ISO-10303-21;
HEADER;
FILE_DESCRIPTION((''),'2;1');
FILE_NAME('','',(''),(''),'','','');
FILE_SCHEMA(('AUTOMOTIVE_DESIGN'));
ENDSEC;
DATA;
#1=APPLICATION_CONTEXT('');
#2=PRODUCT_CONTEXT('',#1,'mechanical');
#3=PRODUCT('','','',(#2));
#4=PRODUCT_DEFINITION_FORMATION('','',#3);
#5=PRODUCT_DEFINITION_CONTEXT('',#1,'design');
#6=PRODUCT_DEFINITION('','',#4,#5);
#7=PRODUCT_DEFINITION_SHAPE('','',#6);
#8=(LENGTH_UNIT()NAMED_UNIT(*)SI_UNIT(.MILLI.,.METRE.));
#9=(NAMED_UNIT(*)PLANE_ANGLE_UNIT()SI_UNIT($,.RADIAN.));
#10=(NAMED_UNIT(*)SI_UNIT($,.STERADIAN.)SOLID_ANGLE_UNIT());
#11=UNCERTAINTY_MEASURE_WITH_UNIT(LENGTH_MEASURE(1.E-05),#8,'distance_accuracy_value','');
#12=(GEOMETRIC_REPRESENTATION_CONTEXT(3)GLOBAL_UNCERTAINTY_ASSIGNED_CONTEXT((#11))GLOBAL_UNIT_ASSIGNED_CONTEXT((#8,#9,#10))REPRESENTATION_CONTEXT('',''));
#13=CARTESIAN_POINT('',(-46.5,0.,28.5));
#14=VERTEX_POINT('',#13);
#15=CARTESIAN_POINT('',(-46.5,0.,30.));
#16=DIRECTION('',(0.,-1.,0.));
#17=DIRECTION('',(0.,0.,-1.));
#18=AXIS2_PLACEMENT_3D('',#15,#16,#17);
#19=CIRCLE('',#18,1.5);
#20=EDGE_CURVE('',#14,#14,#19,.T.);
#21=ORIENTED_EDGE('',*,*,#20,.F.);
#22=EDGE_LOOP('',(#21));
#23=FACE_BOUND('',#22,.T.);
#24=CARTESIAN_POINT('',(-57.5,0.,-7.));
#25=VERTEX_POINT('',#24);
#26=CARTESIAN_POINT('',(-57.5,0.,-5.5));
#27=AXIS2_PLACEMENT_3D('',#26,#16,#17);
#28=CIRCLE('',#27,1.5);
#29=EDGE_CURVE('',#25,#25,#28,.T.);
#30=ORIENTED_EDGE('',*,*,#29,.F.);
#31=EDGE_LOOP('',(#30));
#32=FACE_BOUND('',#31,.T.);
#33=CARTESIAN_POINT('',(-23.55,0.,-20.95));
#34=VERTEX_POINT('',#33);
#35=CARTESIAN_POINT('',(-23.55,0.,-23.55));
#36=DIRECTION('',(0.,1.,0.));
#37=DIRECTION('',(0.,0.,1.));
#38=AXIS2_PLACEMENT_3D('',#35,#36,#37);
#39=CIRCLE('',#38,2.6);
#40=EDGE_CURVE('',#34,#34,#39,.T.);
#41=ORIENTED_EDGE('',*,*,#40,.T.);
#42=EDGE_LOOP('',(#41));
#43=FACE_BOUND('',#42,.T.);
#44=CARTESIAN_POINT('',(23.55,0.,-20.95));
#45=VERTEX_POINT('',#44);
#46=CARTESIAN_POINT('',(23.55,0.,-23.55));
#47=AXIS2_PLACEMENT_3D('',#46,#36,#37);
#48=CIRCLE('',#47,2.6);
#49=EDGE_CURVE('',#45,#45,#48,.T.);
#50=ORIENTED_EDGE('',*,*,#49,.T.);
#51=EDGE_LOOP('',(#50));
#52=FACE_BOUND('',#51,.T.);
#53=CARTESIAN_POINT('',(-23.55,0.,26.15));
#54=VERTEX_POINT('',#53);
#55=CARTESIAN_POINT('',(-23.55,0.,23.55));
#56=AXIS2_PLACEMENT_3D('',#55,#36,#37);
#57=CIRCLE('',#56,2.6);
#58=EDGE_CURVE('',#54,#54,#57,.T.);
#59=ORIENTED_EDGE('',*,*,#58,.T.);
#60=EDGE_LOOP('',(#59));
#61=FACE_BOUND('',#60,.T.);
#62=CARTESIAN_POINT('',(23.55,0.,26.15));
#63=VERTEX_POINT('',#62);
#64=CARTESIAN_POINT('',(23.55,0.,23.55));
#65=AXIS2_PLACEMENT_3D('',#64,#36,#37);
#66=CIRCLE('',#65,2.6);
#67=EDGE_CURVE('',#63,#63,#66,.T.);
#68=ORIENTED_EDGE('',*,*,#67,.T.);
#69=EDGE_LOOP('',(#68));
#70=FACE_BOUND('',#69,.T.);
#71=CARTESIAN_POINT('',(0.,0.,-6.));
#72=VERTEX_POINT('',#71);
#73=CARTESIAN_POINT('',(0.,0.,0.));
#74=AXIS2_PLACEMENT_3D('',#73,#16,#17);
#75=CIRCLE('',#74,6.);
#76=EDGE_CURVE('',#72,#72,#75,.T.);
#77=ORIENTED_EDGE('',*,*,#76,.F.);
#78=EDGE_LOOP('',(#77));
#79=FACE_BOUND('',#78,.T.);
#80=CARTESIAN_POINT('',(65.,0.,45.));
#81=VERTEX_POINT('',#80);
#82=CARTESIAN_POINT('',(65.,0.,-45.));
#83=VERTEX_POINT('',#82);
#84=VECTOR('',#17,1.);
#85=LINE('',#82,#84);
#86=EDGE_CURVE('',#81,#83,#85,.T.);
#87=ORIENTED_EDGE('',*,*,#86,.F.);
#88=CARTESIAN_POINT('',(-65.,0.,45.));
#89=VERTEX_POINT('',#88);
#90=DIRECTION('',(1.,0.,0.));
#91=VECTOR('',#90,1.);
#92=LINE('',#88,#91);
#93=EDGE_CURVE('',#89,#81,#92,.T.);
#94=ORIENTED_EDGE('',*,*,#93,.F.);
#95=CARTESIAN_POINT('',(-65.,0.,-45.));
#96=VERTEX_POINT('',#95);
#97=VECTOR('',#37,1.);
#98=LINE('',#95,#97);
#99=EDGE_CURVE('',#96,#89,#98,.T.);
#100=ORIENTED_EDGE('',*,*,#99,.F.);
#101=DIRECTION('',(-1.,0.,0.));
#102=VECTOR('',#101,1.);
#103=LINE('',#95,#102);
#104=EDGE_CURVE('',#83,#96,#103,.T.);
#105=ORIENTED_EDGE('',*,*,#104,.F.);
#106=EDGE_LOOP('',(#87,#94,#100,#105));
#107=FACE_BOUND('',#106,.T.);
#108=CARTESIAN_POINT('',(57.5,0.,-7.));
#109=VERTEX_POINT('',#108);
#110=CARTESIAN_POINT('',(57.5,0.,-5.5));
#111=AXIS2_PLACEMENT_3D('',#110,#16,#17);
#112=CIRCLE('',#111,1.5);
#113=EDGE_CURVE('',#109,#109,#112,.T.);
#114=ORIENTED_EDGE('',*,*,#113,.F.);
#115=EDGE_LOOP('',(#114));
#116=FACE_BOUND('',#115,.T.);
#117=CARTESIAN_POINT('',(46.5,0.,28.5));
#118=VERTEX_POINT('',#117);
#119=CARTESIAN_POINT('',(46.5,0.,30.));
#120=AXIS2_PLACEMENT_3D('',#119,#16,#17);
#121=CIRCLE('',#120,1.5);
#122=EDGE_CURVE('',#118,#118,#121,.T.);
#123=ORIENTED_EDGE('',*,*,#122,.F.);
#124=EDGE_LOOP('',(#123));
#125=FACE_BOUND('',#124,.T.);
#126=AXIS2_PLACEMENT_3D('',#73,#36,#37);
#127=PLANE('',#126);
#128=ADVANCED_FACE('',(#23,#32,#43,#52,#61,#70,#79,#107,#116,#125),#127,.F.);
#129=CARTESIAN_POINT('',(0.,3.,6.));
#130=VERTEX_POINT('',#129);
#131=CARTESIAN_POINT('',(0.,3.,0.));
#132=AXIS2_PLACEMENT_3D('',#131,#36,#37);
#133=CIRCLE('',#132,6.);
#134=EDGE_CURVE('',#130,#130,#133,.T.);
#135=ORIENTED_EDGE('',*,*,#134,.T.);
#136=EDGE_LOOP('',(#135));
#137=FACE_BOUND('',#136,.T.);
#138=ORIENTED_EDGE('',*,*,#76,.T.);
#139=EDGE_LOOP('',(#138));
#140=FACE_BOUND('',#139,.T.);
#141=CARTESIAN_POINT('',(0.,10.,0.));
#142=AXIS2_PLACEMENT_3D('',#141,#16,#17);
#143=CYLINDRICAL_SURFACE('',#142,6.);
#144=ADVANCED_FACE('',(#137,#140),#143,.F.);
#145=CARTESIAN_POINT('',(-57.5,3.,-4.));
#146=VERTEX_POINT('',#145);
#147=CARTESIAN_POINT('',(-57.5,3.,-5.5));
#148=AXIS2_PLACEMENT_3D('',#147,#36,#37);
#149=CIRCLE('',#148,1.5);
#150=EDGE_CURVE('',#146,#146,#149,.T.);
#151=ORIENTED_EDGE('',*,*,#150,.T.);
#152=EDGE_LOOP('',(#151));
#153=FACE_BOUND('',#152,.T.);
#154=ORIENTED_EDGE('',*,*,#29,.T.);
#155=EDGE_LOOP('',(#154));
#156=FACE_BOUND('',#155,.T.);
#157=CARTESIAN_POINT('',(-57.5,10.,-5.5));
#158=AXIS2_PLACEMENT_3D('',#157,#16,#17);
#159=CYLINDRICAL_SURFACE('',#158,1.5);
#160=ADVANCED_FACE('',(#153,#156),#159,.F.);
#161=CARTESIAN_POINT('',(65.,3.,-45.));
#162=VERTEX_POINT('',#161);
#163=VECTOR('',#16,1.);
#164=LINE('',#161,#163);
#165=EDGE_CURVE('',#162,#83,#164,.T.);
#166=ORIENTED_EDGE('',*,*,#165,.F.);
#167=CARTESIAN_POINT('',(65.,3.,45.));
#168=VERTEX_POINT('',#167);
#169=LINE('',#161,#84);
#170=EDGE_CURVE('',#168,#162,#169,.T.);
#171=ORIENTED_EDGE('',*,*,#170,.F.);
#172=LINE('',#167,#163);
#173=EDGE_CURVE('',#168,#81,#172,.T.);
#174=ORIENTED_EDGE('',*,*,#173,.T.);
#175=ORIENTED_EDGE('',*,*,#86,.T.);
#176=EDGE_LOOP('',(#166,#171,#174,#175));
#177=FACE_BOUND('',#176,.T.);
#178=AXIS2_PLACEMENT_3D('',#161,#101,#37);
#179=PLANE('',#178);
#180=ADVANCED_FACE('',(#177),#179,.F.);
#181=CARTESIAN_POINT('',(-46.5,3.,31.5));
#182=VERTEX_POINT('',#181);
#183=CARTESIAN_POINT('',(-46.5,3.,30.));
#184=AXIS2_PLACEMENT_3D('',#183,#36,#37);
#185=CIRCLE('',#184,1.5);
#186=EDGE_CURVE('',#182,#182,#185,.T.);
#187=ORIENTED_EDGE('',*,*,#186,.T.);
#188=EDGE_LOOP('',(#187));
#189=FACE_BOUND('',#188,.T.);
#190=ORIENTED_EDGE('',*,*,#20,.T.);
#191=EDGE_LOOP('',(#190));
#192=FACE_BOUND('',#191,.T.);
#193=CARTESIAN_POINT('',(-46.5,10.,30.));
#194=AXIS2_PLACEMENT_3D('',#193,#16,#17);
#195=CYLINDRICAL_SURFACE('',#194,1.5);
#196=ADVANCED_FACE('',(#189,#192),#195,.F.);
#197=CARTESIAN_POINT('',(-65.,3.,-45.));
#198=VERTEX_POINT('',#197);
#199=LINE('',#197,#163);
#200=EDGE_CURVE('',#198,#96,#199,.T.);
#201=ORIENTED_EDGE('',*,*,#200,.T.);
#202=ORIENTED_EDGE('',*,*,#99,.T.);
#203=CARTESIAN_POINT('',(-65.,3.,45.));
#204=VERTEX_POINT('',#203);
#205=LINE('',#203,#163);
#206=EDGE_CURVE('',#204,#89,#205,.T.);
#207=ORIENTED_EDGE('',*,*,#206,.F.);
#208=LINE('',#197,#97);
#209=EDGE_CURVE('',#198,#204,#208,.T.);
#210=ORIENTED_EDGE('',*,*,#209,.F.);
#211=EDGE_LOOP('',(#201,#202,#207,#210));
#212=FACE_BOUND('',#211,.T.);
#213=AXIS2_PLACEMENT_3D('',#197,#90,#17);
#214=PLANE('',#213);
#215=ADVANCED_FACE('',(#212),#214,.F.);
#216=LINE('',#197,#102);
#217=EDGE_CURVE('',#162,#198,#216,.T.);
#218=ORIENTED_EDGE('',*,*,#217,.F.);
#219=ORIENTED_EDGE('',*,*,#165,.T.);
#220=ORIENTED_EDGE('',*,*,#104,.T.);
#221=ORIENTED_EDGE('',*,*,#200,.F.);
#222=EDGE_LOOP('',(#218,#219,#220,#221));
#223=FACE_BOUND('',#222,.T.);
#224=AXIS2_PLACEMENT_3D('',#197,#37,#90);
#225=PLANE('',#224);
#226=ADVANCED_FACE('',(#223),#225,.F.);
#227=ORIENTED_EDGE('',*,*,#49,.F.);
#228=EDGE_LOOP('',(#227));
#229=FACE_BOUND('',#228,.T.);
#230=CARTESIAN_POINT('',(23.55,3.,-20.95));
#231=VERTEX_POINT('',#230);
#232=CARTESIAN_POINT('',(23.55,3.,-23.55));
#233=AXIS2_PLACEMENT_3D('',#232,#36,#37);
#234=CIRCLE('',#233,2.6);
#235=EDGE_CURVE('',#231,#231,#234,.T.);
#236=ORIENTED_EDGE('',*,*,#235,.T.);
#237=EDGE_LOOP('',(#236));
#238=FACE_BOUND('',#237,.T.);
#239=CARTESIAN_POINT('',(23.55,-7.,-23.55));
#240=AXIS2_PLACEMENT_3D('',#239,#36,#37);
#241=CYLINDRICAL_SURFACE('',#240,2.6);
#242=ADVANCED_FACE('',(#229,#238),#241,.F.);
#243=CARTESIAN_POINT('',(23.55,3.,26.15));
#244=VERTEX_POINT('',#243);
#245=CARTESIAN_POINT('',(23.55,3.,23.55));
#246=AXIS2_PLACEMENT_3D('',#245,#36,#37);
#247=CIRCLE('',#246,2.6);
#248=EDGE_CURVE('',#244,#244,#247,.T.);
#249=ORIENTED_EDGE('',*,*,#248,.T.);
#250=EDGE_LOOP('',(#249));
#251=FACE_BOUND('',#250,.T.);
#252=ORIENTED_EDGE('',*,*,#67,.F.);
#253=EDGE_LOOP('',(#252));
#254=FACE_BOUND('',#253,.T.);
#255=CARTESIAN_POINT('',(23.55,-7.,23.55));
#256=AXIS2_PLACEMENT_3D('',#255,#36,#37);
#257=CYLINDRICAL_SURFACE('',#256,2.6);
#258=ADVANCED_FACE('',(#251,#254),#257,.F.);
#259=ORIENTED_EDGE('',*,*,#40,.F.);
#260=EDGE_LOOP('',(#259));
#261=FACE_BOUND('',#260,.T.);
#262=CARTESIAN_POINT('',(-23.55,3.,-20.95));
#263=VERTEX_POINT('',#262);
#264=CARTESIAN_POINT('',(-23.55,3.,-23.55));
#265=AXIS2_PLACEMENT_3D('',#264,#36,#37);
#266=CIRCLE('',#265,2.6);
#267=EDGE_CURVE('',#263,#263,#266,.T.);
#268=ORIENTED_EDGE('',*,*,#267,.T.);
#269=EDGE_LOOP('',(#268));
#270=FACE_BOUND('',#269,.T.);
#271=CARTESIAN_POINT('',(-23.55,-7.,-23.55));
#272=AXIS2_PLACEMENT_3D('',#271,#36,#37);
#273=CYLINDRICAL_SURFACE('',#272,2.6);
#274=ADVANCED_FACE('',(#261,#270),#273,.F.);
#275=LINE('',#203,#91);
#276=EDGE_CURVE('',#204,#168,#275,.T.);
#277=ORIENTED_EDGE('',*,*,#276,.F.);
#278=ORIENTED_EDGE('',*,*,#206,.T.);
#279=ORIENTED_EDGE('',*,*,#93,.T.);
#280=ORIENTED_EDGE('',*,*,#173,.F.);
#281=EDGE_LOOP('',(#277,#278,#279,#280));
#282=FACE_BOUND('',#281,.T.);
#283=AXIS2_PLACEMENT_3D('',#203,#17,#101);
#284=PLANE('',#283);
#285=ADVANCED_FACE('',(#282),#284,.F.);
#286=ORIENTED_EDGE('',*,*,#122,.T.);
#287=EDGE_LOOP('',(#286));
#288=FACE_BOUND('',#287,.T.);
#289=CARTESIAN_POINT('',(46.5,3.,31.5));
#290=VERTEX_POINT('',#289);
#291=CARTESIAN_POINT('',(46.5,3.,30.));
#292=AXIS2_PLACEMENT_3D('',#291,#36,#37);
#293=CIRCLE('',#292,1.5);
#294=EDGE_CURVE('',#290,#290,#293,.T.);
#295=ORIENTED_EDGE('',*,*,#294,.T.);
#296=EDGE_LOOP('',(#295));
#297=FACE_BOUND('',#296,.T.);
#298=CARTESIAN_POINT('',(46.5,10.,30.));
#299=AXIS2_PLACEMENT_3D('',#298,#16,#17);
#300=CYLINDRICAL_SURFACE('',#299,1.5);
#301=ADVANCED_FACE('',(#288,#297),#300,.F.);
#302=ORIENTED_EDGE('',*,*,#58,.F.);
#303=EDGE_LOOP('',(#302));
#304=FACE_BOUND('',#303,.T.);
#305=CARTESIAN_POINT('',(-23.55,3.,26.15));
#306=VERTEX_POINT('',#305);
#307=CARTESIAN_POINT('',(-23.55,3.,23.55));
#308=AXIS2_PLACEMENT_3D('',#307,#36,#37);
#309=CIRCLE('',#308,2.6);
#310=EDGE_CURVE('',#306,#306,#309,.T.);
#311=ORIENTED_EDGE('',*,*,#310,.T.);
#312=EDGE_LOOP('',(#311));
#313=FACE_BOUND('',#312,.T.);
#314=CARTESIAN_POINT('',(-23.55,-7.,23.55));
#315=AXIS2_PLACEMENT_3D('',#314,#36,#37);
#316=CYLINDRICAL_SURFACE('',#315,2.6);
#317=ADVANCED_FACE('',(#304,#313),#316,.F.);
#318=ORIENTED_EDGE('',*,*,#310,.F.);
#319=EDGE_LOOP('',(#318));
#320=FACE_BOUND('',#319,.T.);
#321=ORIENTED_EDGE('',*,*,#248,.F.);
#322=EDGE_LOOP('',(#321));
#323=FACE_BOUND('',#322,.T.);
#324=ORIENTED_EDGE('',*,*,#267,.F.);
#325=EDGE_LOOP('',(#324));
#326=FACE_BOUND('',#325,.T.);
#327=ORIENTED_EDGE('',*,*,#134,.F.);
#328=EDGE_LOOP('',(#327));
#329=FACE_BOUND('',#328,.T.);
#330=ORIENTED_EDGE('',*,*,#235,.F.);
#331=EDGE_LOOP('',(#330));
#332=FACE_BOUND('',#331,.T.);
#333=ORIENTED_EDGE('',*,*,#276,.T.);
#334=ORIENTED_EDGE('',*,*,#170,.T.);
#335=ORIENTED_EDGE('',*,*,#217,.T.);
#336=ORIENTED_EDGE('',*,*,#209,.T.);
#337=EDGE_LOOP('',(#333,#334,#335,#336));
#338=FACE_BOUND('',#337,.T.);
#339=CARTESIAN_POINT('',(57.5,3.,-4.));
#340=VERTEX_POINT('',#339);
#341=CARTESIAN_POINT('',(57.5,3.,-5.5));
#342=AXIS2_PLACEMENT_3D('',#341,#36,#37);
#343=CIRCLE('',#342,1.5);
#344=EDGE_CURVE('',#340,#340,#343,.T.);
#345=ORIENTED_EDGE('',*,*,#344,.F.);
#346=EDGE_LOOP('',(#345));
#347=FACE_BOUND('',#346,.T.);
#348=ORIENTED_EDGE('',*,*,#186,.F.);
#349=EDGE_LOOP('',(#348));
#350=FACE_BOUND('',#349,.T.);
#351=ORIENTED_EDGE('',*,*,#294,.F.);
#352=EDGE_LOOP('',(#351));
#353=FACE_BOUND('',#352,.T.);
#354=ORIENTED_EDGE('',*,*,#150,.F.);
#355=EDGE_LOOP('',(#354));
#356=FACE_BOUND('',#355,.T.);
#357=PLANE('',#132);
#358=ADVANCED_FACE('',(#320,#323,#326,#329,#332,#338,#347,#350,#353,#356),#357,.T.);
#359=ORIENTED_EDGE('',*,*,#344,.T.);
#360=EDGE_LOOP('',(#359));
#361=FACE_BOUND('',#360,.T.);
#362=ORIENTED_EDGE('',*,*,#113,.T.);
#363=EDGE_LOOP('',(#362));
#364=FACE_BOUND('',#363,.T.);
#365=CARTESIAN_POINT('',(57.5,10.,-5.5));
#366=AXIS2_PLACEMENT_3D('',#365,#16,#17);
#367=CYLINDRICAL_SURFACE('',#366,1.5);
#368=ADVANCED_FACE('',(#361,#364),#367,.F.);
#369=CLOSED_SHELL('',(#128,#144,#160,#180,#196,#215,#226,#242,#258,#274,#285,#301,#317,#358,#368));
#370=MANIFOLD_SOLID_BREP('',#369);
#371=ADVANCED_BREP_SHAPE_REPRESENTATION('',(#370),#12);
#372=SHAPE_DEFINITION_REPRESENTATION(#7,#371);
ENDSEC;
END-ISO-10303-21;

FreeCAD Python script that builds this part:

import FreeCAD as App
import Part
import Sketcher
Q = App.Units.Quantity


def add_polygon(sketch, points):
    """Adds a closed chain of lines whose ends are joined by coincident constraints."""
    first, n = sketch.GeometryCount, len(points)
    for a, b in zip(points, points[1:] + points[:1]):
        sketch.addGeometry(Part.LineSegment(App.Vector(*a, 0), App.Vector(*b, 0)), False)
    for i in range(n):
        sketch.addConstraint(Sketcher.Constraint("Coincident", first + i, 2, first + (i + 1) % n, 1))

doc = App.newDocument("Part")
params = doc.addObject("Spreadsheet::Sheet", "Params")
for row, (alias, value) in enumerate([
    ("sketch1_width", "130 mm"),
    ("sketch1_height", "90 mm"),
    ("pad1_length", "3 mm"),
    ("sketch2_diameter", "5.2 mm"),
    ("pocket1_length", "10 mm"),
    ("sketch3_diameter", "3 mm"),
    ("pocket2_length", "10 mm"),
    ("sketch4_diameter", "12 mm"),
    ("pocket3_length", "10 mm"),
], start=1):
    params.set(f"A{row}", alias)
    params.set(f"B{row}", "=" + value)
    params.setAlias(f"B{row}", alias)

body = doc.addObject("PartDesign::Body", "Body")

# Sketch on XZ plane
sketch1 = body.newObject("Sketcher::SketchObject", "Sketch")
sketch1.AttachmentSupport = (doc.getObject("XZ_Plane"), [""])
sketch1.MapMode = "FlatFace"
add_polygon(sketch1, [(-65, -45), (-65, 45), (65, 45), (65, -45)])  # lines 0-3
sketch1.addConstraint(Sketcher.Constraint("Vertical", 0))
sketch1.addConstraint(Sketcher.Constraint("Horizontal", 1))
sketch1.addConstraint(Sketcher.Constraint("Vertical", 2))
sketch1.addConstraint(Sketcher.Constraint("Horizontal", 3))
sketch1.addConstraint(Sketcher.Constraint("Symmetric", 0, 2, 2, 2, -1, 1))
sketch1.addConstraint(Sketcher.Constraint("DistanceX", 1, 1, 1, 2, Q("130 mm")))
sketch1.addConstraint(Sketcher.Constraint("DistanceY", 0, 1, 0, 2, Q("90 mm")))
sketch1.setExpression("Constraints[9]", "Params.sketch1_width")
sketch1.setExpression("Constraints[10]", "Params.sketch1_height")
pad1 = body.newObject("PartDesign::Pad", "Pad")
pad1.Profile = sketch1
pad1.setExpression("Length", "Params.pad1_length")
pad1.Reversed = True

# Sketch on XZ plane
sketch2 = body.newObject("Sketcher::SketchObject", "Sketch001")
sketch2.AttachmentSupport = (doc.getObject("XZ_Plane"), [""])
sketch2.MapMode = "FlatFace"
sketch2.AttachmentOffset = App.Placement(App.Vector(0, 0, -3), App.Rotation())
sketch2.addGeometry(Part.Circle(App.Vector(23.55, 23.55, 0), App.Vector(0, 0, 1), 2.6), False)
sketch2.addGeometry(Part.Circle(App.Vector(-23.55, 23.55, 0), App.Vector(0, 0, 1), 2.6), False)
sketch2.addGeometry(Part.Circle(App.Vector(-23.55, -23.55, 0), App.Vector(0, 0, 1), 2.6), False)
sketch2.addGeometry(Part.Circle(App.Vector(23.55, -23.55, 0), App.Vector(0, 0, 1), 2.6), False)
sketch2.addConstraint(Sketcher.Constraint("Equal", 0, 1))
sketch2.addConstraint(Sketcher.Constraint("Equal", 1, 2))
sketch2.addConstraint(Sketcher.Constraint("Equal", 2, 3))
sketch2.addConstraint(Sketcher.Constraint("Symmetric", 0, 3, 2, 3, -1, 1))
sketch2.addConstraint(Sketcher.Constraint("Symmetric", 1, 3, 3, 3, -1, 1))
sketch2.addConstraint(Sketcher.Constraint("Symmetric", 0, 3, 1, 3, -2))
sketch2.addConstraint(Sketcher.Constraint("Diameter", 0, Q("5.2 mm")))
sketch2.addConstraint(Sketcher.Constraint("DistanceX", 1, 3, 0, 3, Q("47.1 mm")))
sketch2.addConstraint(Sketcher.Constraint("DistanceY", 2, 3, 1, 3, Q("47.1 mm")))
sketch2.setExpression("Constraints[6]", "Params.sketch2_diameter")
pocket1 = body.newObject("PartDesign::Pocket", "Pocket")
pocket1.Profile = sketch2
pocket1.setExpression("Length", "Params.pocket1_length")
pocket1.Reversed = True

# Sketch on XZ plane
sketch3 = body.newObject("Sketcher::SketchObject", "Sketch002")
sketch3.AttachmentSupport = (doc.getObject("XZ_Plane"), [""])
sketch3.MapMode = "FlatFace"
sketch3.addGeometry(Part.Circle(App.Vector(46.5, 30, 0), App.Vector(0, 0, 1), 1.5), False)
sketch3.addGeometry(Part.Circle(App.Vector(-46.5, 30, 0), App.Vector(0, 0, 1), 1.5), False)
sketch3.addGeometry(Part.Circle(App.Vector(-57.5, -5.5, 0), App.Vector(0, 0, 1), 1.5), False)
sketch3.addGeometry(Part.Circle(App.Vector(57.5, -5.5, 0), App.Vector(0, 0, 1), 1.5), False)
sketch3.addConstraint(Sketcher.Constraint("Equal", 0, 1))
sketch3.addConstraint(Sketcher.Constraint("Equal", 1, 2))
sketch3.addConstraint(Sketcher.Constraint("Equal", 2, 3))
sketch3.addConstraint(Sketcher.Constraint("Symmetric", 0, 3, 1, 3, -2))
sketch3.addConstraint(Sketcher.Constraint("Symmetric", 2, 3, 3, 3, -2))
sketch3.addConstraint(Sketcher.Constraint("Diameter", 0, Q("3 mm")))
sketch3.addConstraint(Sketcher.Constraint("DistanceY", -1, 1, 0, 3, Q("30 mm")))
sketch3.addConstraint(Sketcher.Constraint("DistanceX", 1, 3, 0, 3, Q("93 mm")))
sketch3.addConstraint(Sketcher.Constraint("DistanceX", 2, 3, 1, 3, Q("11 mm")))
sketch3.addConstraint(Sketcher.Constraint("DistanceY", 2, 3, -1, 1, Q("5.5 mm")))
sketch3.setExpression("Constraints[5]", "Params.sketch3_diameter")
pocket2 = body.newObject("PartDesign::Pocket", "Pocket001")
pocket2.Profile = sketch3
pocket2.setExpression("Length", "Params.pocket2_length")

# Sketch on XZ plane
sketch4 = body.newObject("Sketcher::SketchObject", "Sketch003")
sketch4.AttachmentSupport = (doc.getObject("XZ_Plane"), [""])
sketch4.MapMode = "FlatFace"
sketch4.addGeometry(Part.Circle(App.Vector(0, 0, 0), App.Vector(0, 0, 1), 6), False)
sketch4.addConstraint(Sketcher.Constraint("Coincident", 0, 3, -1, 1))
sketch4.addConstraint(Sketcher.Constraint("Diameter", 0, Q("12 mm")))
sketch4.setExpression("Constraints[1]", "Params.sketch4_diameter")
pocket3 = body.newObject("PartDesign::Pocket", "Pocket002")
pocket3.Profile = sketch4
pocket3.setExpression("Length", "Params.pocket3_length")

doc.recompute()
